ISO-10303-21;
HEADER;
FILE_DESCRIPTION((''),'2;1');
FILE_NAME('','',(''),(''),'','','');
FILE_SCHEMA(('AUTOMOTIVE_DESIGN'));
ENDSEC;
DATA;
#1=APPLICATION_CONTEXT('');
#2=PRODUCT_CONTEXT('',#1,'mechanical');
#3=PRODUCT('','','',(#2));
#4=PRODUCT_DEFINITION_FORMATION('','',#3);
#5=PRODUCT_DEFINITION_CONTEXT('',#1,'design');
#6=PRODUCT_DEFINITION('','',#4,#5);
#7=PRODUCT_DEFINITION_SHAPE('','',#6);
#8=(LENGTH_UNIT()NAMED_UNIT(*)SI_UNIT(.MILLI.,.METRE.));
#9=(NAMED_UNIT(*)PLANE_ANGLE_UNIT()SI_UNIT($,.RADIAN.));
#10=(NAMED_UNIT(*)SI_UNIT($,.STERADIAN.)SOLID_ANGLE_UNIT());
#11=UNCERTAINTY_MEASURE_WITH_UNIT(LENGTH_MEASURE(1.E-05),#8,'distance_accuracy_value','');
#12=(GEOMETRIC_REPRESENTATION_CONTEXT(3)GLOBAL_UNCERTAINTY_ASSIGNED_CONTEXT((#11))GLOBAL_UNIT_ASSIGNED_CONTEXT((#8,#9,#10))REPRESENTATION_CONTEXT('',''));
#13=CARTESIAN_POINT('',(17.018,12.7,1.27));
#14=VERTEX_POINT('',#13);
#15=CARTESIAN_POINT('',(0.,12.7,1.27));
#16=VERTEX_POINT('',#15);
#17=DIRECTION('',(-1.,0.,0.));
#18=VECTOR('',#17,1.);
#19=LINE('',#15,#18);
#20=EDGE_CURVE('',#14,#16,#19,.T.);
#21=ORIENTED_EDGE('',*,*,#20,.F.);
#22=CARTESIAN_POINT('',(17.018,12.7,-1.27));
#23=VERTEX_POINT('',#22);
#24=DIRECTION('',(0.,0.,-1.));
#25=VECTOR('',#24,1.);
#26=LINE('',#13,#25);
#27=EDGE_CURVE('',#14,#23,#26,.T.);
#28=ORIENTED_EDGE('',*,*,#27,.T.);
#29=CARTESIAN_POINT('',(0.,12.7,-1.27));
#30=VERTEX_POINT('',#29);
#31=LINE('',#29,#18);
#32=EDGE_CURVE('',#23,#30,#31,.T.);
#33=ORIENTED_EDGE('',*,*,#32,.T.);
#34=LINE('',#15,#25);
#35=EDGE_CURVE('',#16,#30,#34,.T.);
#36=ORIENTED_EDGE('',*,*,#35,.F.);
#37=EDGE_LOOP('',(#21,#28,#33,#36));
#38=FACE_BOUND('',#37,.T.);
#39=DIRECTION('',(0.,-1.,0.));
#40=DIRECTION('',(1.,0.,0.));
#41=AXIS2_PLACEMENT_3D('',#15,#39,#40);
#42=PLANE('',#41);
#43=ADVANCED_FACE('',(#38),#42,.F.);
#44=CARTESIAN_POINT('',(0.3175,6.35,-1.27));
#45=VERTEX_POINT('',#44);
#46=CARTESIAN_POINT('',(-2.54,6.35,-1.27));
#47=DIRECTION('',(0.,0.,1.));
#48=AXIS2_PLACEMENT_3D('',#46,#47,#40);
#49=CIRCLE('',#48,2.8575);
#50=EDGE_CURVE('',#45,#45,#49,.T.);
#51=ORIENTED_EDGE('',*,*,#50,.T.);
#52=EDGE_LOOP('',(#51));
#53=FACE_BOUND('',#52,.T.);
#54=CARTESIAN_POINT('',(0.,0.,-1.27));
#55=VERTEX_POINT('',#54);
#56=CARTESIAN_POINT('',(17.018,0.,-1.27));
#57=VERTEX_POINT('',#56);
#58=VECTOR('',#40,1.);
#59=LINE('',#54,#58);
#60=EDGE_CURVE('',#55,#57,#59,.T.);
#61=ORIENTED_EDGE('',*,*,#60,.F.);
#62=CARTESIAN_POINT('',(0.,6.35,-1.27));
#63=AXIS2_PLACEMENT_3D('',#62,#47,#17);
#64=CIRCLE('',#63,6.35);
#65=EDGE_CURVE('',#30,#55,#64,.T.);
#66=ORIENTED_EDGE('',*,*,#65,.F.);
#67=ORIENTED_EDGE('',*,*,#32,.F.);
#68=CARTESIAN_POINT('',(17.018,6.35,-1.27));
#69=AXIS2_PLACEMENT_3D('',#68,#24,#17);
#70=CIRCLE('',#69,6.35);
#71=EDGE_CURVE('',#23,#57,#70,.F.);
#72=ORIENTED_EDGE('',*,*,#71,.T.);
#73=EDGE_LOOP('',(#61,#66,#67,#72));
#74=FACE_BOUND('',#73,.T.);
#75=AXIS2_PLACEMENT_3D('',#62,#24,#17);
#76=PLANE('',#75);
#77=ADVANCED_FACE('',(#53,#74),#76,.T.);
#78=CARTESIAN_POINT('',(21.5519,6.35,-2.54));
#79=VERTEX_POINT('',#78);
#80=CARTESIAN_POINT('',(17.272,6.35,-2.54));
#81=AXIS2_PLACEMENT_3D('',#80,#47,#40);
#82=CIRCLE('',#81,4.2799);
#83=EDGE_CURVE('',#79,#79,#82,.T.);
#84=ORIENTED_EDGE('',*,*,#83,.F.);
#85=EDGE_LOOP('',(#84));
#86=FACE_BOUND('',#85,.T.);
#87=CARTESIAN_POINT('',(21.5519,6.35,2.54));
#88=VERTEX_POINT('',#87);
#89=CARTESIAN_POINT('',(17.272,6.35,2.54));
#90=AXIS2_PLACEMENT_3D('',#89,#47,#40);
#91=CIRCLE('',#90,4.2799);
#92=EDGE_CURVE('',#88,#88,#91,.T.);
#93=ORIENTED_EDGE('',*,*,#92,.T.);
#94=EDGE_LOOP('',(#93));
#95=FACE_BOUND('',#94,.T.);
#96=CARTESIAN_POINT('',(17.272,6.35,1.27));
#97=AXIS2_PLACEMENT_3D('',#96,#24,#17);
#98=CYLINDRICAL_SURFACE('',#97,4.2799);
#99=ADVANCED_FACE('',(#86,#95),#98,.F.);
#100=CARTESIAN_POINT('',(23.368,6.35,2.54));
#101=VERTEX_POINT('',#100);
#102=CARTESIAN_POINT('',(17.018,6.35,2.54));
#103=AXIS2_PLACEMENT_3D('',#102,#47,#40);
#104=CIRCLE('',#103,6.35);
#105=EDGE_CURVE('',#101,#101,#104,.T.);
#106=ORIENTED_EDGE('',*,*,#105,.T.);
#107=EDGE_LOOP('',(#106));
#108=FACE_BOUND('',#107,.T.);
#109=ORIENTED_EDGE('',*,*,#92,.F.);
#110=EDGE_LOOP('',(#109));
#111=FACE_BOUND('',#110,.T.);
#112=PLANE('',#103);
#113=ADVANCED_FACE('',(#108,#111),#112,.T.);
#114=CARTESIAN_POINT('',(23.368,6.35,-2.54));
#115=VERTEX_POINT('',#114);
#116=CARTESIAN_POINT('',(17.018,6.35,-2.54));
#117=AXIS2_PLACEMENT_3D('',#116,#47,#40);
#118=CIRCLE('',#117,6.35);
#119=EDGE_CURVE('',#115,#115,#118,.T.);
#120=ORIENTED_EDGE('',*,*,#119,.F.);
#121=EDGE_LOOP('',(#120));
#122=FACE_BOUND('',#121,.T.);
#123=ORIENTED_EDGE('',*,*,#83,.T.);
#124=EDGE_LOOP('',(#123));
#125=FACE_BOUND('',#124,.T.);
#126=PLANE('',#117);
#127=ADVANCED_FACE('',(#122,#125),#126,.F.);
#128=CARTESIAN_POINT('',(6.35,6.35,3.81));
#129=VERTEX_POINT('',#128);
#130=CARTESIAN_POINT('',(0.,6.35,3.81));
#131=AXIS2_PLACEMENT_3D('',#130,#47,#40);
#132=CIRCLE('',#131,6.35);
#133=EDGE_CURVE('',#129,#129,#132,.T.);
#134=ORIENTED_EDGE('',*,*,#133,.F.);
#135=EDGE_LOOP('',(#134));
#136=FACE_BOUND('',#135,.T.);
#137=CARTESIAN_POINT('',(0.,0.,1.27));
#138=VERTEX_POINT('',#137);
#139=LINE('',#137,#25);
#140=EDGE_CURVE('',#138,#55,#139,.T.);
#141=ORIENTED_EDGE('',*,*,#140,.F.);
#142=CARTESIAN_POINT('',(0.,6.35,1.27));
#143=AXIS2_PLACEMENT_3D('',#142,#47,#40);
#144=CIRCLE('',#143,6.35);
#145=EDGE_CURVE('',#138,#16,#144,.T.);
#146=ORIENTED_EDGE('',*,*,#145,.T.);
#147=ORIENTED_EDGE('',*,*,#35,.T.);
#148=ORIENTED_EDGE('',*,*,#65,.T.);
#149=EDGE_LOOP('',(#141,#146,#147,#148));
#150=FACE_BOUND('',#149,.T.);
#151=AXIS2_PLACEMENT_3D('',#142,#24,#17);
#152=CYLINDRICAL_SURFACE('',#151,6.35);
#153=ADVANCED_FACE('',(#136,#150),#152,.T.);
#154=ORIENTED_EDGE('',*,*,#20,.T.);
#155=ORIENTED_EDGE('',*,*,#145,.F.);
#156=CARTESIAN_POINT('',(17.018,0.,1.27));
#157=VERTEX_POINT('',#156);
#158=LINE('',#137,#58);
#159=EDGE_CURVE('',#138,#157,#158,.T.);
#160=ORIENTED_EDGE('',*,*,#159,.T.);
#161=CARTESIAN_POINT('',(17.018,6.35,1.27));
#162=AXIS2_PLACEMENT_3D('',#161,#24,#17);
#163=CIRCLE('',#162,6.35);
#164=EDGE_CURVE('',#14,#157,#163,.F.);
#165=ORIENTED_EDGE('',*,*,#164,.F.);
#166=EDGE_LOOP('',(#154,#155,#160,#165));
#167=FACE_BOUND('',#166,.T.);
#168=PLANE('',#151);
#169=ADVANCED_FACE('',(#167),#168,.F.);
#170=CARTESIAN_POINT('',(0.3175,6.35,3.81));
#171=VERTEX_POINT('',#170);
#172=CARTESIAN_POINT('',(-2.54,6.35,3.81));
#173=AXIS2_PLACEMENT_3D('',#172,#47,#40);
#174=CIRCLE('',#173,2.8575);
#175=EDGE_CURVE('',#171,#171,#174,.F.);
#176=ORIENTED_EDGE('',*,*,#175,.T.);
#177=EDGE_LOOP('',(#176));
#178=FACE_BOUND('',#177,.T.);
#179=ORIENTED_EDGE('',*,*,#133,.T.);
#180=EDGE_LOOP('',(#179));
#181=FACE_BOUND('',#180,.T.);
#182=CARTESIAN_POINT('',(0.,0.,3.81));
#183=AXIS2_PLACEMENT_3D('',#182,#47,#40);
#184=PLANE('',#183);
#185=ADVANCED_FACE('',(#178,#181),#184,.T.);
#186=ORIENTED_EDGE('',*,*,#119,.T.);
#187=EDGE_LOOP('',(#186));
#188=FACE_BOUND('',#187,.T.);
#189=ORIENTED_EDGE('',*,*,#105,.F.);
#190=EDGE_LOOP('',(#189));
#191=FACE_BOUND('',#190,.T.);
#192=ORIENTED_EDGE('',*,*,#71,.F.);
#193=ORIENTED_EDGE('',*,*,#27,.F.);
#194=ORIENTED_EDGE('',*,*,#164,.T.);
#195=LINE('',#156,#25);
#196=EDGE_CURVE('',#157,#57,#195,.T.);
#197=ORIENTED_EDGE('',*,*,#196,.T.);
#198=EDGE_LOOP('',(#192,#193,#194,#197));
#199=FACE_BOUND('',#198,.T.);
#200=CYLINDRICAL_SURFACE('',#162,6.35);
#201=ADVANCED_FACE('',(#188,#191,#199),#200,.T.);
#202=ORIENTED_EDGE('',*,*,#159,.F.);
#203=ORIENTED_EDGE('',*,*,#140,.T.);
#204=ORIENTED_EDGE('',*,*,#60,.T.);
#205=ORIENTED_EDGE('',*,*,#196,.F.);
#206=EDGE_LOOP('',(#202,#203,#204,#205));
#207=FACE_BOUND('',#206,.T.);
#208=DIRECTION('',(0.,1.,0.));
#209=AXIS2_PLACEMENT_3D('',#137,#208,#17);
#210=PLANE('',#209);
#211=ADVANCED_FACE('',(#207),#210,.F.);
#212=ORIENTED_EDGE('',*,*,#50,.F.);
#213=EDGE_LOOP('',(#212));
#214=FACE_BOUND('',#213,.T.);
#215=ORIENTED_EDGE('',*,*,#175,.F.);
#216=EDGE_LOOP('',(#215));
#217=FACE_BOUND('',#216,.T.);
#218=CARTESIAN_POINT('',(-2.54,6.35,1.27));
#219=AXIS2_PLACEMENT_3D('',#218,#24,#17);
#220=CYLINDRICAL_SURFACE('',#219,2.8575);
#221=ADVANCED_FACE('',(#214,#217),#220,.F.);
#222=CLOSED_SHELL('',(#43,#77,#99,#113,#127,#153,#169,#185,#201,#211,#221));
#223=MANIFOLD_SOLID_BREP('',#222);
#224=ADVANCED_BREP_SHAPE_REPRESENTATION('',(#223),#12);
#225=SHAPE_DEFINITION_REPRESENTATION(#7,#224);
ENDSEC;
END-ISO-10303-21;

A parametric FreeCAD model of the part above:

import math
import FreeCAD as App
import Part
import Sketcher

V = App.Vector
Q = App.Units.Quantity

doc = App.newDocument("Part")
body = doc.addObject("PartDesign::Body", "Body")

# Sketch on XY plane
sketch1 = doc.addObject("Sketcher::SketchObject", "Sketch")
body.addObject(sketch1)
sketch1.AttachmentSupport = (doc.XY_Plane, [""])
sketch1.MapMode = "FlatFace"
sketch1.addGeometry(Part.LineSegment(V(17, 12.7, 0), V(0, 12.7, 0)), False)
sketch1.addGeometry(Part.ArcOfCircle(Part.Circle(V(0, 6.3, 0), V(0, 0, 1), 6.3), math.radians(90), math.radians(270)), False)
sketch1.addGeometry(Part.LineSegment(V(0, 0, 0), V(17, 0, 0)), False)
sketch1.addGeometry(Part.ArcOfCircle(Part.Circle(V(17, 6.3, 0), V(0, 0, 1), 6.3), math.radians(-90), math.radians(90)), False)
sketch1.addGeometry(Part.Circle(V(17.3, 6.3, 0), V(0, 0, 1), 4.3), False)
sketch1.addGeometry(Part.Circle(V(-2.5, 6.3, 0), V(0, 0, 1), 2.9), False)
sketch1.addConstraint(Sketcher.Constraint("Tangent", 0, 2, 1, 1))
sketch1.addConstraint(Sketcher.Constraint("Tangent", 1, 2, 2, 1))
sketch1.addConstraint(Sketcher.Constraint("Tangent", 2, 2, 3, 1))
sketch1.addConstraint(Sketcher.Constraint("Tangent", 3, 2, 0, 1))
sketch1.addConstraint(Sketcher.Constraint("Horizontal", 0))
sketch1.addConstraint(Sketcher.Constraint("Horizontal", 2))
sketch1.addConstraint(Sketcher.Constraint("Coincident", 1, 2, -1, 1))
sketch1.addConstraint(Sketcher.Constraint("Horizontal", 3, 3, 4, 3))
sketch1.addConstraint(Sketcher.Constraint("Horizontal", 4, 3, 5, 3))
sketch1.addConstraint(Sketcher.Constraint("Radius", 1, Q("0.25 in")))
sketch1.addConstraint(Sketcher.Constraint("Diameter", 4, Q("0.337 in")))
sketch1.addConstraint(Sketcher.Constraint("Diameter", 5, Q("0.225 in")))
sketch1.addConstraint(Sketcher.Constraint("DistanceX", 0, 2, 0, 1, Q("0.67 in")))
sketch1.addConstraint(Sketcher.Constraint("DistanceX", 5, 3, -1, 1, Q("0.1 in")))
sketch1.addConstraint(Sketcher.Constraint("DistanceX", -1, 1, 4, 3, Q("0.68 in")))
pad1 = doc.addObject("PartDesign::Pad", "Pad")
body.addObject(pad1)
pad1.Profile = sketch1
pad1.Length = Q("0.1 in")
pad1.Midplane = True

# Sketch on XY plane
sketch2 = doc.addObject("Sketcher::SketchObject", "Sketch001")
body.addObject(sketch2)
sketch2.AttachmentSupport = (doc.XY_Plane, [""])
sketch2.MapMode = "FlatFace"
sketch2.AttachmentOffset = App.Placement(V(0, 0, 0.15 * 25.4), App.Rotation())
sketch2.addGeometry(Part.ArcOfCircle(Part.Circle(V(0, 6.3, 0), V(0, 0, 1), 6.3), math.radians(-90), math.radians(0)), False)
sketch2.addGeometry(Part.ArcOfCircle(Part.Circle(V(0, 6.4, 0), V(0, 0, 1), 6.3), math.radians(0), math.radians(90)), False)
sketch2.addGeometry(Part.ArcOfCircle(Part.Circle(V(0, 6.3, 0), V(0, 0, 1), 6.3), math.radians(90), math.radians(270)), False)
sketch2.addGeometry(Part.Circle(V(-2.5, 6.3, 0), V(0, 0, 1), 2.9), False)
sketch2.addConstraint(Sketcher.Constraint("Tangent", 0, 2, 1, 1))
sketch2.addConstraint(Sketcher.Constraint("Tangent", 1, 2, 2, 1))
sketch2.addConstraint(Sketcher.Constraint("Tangent", 2, 2, 0, 1))
sketch2.addConstraint(Sketcher.Constraint("Coincident", 2, 2, -1, 1))
sketch2.addConstraint(Sketcher.Constraint("PointOnObject", 0, 3, -2))
sketch2.addConstraint(Sketcher.Constraint("PointOnObject", 1, 2, -2))
sketch2.addConstraint(Sketcher.Constraint("Horizontal", 2, 3, 3, 3))
sketch2.addConstraint(Sketcher.Constraint("Horizontal", 3, 3, 0, 2))
sketch2.addConstraint(Sketcher.Constraint("Radius", 0, Q("0.25 in")))
sketch2.addConstraint(Sketcher.Constraint("Diameter", 3, Q("0.225 in")))
sketch2.addConstraint(Sketcher.Constraint("DistanceX", 3, 3, -1, 1, Q("0.1 in")))
pad2 = doc.addObject("PartDesign::Pad", "Pad001")
body.addObject(pad2)
pad2.Profile = sketch2
pad2.Length = Q("0.1 in")
pad2.Reversed = True

# Sketch on XY plane
sketch3 = doc.addObject("Sketcher::SketchObject", "Sketch002")
body.addObject(sketch3)
sketch3.AttachmentSupport = (doc.XY_Plane, [""])
sketch3.MapMode = "FlatFace"
sketch3.addGeometry(Part.Circle(V(17, 6.3, 0), V(0, 0, 1), 6.3), False)
sketch3.addGeometry(Part.Circle(V(17.3, 6.3, 0), V(0, 0, 1), 4.3), False)
sketch3.addConstraint(Sketcher.Constraint("Horizontal", 0, 3, 1, 3))
sketch3.addConstraint(Sketcher.Constraint("Diameter", 0, Q("0.5 in")))
sketch3.addConstraint(Sketcher.Constraint("Diameter", 1, Q("0.337 in")))
sketch3.addConstraint(Sketcher.Constraint("DistanceX", -1, 1, 0, 3, Q("0.67 in")))
sketch3.addConstraint(Sketcher.Constraint("DistanceY", -1, 1, 0, 3, Q("0.25 in")))
sketch3.addConstraint(Sketcher.Constraint("DistanceX", -1, 1, 1, 3, Q("0.68 in")))
pad3 = doc.addObject("PartDesign::Pad", "Pad002")
body.addObject(pad3)
pad3.Profile = sketch3
pad3.Length = Q("0.2 in")
pad3.Midplane = True

doc.recompute()
